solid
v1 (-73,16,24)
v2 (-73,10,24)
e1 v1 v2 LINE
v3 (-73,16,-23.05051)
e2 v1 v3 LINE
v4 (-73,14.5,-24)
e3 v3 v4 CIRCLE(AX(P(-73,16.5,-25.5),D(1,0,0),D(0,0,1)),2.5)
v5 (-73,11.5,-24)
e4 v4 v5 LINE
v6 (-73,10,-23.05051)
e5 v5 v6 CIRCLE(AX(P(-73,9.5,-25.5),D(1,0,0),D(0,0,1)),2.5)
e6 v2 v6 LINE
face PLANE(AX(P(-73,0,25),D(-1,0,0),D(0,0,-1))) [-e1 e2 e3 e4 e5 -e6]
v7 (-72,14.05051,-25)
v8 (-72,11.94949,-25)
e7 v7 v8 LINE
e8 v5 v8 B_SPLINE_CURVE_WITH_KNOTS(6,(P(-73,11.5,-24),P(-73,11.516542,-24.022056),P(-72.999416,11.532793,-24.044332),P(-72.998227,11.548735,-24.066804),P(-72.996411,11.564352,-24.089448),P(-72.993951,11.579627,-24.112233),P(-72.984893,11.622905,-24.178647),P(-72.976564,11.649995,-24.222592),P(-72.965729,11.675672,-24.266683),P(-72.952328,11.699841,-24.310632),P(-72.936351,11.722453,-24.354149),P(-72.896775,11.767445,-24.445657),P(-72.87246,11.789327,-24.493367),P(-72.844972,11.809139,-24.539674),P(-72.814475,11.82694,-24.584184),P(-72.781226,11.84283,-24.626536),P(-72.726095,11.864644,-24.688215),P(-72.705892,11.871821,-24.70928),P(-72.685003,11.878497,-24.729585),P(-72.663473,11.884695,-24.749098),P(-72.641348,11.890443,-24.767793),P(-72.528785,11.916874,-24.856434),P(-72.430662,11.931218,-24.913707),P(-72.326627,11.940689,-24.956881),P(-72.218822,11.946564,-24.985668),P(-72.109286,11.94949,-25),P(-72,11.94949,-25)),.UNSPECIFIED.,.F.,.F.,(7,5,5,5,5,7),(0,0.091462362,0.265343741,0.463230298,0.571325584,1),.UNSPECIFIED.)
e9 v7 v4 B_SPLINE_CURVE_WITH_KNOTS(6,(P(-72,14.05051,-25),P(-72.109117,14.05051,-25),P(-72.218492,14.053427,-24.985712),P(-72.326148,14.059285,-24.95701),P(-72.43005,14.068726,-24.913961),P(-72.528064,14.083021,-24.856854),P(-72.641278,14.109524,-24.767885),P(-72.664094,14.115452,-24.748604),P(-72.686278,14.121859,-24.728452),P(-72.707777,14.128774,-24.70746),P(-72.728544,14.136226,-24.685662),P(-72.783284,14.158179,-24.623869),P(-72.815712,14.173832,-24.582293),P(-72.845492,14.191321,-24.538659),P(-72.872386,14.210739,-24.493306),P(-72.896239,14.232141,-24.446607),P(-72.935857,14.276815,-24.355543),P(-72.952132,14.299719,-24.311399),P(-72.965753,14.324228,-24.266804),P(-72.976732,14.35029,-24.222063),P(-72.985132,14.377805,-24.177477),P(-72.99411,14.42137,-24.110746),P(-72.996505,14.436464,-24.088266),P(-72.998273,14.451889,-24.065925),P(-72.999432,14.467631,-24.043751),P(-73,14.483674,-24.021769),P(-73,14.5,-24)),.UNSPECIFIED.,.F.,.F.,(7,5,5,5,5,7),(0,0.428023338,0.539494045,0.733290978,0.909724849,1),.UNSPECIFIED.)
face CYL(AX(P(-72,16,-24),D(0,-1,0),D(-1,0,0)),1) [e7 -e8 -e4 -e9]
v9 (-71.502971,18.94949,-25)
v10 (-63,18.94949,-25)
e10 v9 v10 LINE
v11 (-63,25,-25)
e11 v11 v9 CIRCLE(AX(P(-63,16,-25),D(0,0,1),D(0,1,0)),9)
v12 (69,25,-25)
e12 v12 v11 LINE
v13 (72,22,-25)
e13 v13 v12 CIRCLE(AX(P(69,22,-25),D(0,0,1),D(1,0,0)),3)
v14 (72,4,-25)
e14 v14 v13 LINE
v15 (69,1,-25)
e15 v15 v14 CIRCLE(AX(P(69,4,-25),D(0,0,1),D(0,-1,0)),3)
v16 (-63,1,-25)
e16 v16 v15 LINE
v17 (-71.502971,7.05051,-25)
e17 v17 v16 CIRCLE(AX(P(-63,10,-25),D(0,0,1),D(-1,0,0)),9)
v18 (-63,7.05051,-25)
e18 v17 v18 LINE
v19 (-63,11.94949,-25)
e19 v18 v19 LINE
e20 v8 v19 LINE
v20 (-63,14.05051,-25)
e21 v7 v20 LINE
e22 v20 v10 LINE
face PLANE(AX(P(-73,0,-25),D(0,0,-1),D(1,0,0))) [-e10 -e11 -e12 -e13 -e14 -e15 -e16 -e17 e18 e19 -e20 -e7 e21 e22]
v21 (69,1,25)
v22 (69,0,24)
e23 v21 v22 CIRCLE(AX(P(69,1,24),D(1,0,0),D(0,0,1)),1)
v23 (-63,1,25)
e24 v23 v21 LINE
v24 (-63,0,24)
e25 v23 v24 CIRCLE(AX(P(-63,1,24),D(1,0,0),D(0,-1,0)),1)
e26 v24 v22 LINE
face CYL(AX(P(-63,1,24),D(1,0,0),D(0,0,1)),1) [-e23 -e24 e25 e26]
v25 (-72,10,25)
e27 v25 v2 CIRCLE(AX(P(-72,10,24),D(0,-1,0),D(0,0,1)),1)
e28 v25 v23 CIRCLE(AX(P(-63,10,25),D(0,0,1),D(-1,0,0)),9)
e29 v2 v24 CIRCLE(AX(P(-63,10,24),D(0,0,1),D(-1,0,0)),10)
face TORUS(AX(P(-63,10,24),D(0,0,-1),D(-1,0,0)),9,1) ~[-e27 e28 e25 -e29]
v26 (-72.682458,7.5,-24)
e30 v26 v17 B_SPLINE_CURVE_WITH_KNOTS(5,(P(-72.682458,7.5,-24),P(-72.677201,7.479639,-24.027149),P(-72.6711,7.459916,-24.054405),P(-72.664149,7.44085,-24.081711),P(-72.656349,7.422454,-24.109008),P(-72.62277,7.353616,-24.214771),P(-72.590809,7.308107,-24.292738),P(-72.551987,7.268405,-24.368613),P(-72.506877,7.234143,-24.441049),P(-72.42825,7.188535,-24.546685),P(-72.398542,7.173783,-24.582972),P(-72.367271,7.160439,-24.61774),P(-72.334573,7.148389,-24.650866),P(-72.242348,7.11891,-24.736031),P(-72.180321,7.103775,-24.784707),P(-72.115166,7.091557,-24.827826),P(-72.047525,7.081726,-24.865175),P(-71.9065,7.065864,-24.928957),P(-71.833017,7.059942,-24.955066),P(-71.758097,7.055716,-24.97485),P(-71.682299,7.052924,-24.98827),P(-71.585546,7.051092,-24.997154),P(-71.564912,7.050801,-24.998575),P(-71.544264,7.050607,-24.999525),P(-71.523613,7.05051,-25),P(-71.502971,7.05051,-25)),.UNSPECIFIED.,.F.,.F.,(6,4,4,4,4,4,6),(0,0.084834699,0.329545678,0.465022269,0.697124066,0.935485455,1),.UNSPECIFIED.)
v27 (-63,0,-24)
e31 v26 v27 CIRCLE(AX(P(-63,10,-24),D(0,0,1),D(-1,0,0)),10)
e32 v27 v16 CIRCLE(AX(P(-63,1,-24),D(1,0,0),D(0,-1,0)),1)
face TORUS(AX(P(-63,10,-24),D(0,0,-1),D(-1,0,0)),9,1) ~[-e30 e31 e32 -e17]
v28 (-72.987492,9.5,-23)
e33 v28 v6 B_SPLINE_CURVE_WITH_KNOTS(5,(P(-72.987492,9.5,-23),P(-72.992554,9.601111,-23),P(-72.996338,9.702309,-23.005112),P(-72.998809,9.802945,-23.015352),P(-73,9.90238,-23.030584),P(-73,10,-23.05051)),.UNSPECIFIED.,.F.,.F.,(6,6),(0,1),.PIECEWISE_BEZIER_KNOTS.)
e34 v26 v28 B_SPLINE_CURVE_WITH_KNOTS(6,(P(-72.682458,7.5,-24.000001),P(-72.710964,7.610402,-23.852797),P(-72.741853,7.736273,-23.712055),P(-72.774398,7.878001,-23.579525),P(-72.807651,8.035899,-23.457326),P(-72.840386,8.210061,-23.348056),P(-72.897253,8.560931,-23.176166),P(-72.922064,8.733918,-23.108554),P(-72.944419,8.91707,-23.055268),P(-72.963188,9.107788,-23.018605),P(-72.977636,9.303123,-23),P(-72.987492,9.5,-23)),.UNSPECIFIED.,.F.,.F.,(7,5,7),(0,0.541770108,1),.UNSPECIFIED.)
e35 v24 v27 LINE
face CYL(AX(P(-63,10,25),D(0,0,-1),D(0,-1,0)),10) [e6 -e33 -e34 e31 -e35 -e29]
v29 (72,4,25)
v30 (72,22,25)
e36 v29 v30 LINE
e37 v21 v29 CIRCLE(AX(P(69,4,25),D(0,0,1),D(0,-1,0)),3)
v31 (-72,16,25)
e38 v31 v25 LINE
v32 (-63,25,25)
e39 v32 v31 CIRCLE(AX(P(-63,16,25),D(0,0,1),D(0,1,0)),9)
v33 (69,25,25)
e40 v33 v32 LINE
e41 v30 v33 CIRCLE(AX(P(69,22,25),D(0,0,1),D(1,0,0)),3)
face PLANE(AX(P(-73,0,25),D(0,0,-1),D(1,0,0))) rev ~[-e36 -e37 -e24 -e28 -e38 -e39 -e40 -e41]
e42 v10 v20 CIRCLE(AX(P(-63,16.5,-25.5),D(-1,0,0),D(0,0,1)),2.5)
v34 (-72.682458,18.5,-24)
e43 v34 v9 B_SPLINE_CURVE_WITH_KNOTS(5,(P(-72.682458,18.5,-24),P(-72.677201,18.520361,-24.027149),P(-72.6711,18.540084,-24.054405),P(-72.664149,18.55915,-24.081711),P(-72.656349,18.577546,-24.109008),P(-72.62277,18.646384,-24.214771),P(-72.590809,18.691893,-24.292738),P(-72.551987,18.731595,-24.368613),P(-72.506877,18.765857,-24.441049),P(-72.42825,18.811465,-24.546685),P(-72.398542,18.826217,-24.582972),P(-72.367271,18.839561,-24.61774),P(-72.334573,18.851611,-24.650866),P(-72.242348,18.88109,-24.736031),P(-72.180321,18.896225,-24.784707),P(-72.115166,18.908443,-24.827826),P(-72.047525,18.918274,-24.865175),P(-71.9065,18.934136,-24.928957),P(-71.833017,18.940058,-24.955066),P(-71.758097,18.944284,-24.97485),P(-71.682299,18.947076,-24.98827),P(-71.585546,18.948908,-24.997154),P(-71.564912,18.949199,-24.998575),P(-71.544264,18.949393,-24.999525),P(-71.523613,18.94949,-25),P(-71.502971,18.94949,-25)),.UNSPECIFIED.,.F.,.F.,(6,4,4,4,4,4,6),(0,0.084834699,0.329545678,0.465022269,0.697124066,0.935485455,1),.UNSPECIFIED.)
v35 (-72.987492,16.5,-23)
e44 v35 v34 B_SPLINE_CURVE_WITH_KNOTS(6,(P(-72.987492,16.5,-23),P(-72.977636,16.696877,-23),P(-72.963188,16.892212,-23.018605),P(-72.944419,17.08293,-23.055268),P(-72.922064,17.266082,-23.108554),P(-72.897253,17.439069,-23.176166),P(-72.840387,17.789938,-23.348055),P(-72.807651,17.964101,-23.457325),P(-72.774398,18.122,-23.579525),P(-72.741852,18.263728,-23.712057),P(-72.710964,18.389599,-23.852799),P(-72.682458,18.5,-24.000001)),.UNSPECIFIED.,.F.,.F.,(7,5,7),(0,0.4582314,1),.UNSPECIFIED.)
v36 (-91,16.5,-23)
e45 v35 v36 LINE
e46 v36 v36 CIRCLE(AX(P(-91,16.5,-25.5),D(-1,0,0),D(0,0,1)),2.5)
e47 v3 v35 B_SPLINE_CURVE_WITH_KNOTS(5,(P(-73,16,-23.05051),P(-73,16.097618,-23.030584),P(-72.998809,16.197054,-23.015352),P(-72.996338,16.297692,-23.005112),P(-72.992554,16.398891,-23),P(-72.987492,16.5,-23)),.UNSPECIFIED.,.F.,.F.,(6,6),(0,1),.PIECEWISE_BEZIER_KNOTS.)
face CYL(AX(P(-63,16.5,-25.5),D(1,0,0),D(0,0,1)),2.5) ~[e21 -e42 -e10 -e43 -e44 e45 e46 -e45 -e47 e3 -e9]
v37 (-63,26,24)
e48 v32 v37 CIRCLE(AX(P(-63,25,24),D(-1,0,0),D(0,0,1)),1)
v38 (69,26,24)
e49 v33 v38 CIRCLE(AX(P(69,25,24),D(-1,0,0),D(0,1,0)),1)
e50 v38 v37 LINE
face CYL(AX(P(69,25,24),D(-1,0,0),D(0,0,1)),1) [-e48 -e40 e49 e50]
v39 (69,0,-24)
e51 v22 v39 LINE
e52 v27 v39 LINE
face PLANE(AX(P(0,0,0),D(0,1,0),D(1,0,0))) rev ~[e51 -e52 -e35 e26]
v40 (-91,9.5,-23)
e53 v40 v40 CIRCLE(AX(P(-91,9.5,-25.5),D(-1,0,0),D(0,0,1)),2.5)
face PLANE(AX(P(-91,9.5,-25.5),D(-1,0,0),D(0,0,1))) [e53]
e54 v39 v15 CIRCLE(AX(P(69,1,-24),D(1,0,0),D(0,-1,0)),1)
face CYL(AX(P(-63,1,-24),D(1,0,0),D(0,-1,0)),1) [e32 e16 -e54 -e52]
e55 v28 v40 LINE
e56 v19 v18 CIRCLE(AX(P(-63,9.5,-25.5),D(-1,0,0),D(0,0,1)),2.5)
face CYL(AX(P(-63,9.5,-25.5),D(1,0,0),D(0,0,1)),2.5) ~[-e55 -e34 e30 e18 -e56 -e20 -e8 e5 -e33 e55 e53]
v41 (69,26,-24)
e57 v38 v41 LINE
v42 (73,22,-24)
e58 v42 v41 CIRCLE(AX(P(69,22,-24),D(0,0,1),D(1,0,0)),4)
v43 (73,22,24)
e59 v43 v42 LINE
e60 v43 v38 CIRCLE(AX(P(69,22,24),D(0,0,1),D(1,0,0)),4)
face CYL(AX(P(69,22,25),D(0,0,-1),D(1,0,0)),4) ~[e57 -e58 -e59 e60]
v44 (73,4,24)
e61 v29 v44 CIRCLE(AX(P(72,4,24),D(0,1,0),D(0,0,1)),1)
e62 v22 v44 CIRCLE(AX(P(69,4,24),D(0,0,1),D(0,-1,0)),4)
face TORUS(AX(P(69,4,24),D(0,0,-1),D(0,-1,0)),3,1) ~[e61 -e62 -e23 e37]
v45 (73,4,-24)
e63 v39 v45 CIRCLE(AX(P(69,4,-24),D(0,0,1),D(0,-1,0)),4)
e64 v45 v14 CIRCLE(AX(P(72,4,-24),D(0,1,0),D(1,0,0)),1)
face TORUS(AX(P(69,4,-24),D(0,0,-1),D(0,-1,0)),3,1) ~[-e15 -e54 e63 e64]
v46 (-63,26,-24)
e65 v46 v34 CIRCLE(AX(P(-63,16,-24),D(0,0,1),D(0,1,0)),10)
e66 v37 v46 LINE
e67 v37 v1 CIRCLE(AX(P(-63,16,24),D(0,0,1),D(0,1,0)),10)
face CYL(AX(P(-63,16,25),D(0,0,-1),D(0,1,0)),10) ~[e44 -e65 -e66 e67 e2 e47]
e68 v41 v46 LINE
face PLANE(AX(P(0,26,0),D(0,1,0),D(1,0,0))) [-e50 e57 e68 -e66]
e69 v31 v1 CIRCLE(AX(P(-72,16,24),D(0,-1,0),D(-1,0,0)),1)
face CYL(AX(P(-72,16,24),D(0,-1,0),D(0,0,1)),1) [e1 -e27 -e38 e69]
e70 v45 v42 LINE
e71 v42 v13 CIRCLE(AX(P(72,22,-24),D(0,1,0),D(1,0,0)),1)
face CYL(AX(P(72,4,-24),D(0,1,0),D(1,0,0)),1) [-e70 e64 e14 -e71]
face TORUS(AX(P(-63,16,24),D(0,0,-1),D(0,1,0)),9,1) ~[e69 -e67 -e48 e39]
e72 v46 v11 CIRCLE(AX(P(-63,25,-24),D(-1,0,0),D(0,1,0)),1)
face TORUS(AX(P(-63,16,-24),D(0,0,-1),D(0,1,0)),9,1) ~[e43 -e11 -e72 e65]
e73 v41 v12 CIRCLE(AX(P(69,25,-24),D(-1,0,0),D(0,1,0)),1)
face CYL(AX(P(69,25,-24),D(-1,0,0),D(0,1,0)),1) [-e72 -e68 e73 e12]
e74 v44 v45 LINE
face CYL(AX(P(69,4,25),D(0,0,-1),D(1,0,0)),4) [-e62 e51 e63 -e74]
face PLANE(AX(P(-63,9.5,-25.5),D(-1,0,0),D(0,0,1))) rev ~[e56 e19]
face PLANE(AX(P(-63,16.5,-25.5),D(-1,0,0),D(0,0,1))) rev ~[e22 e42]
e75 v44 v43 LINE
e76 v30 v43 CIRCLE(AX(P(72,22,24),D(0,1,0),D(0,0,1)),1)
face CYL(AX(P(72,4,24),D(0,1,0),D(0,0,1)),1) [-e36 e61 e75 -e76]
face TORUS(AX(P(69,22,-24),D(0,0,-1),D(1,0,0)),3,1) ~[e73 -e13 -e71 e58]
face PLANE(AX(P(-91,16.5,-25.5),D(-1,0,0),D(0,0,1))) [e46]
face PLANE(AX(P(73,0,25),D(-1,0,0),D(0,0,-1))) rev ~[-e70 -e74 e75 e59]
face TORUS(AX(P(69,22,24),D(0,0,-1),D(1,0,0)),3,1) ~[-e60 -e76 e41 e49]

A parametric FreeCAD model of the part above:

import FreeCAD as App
import Part
import Sketcher

V = App.Vector
Q = App.Units.Quantity


def edges_at(feature, points):
    """Names of the edges that pass closest to the given points."""
    edges = feature.Shape.Edges
    near = lambda p: min(range(len(edges)), key=lambda i: edges[i].distToShape(Part.Vertex(*p))[0])
    return sorted({f"Edge{near(p) + 1}" for p in points})


def add_polygon(sketch, points):
    """Adds a closed chain of lines whose ends are joined by coincident constraints."""
    first, n = sketch.GeometryCount, len(points)
    for a, b in zip(points, points[1:] + points[:1]):
        sketch.addGeometry(Part.LineSegment(App.Vector(*a, 0), App.Vector(*b, 0)), False)
    for i in range(n):
        sketch.addConstraint(Sketcher.Constraint("Coincident", first + i, 2, first + (i + 1) % n, 1))

doc = App.newDocument("Part")
body = doc.addObject("PartDesign::Body", "Body")

sketch1 = body.newObject("Sketcher::SketchObject", "Sketch")
sketch1.AttachmentSupport = (doc.getObject("XZ_Plane"), [""])
sketch1.MapMode = "FlatFace"
add_polygon(sketch1, [(-73, -25), (-73, 25), (73, 25), (73, -25)])
sketch1.addConstraint(Sketcher.Constraint("Vertical", 0))
sketch1.addConstraint(Sketcher.Constraint("Horizontal", 1))
sketch1.addConstraint(Sketcher.Constraint("Vertical", 2))
sketch1.addConstraint(Sketcher.Constraint("Horizontal", 3))
sketch1.addConstraint(Sketcher.Constraint("Symmetric", 0, 2, 2, 2, -1, 1))
sketch1.addConstraint(Sketcher.Constraint("DistanceX", 1, 1, 1, 2, Q("146 mm")))
sketch1.addConstraint(Sketcher.Constraint("DistanceY", 0, 1, 0, 2, Q("50 mm")))
pad1 = body.newObject("PartDesign::Pad", "Pad")
pad1.Profile = sketch1
pad1.Length = 26
pad1.Reversed = True
doc.recompute()

fillet = body.newObject("PartDesign::Fillet", "Fillet")
fillet.Base = (pad1, edges_at(pad1, [(73, 26, 0), (73, 0, 0)]))
fillet.Radius = 4
doc.recompute()

fillet2 = body.newObject("PartDesign::Fillet", "Fillet001")
fillet2.Base = (fillet, edges_at(fillet, [(-73, 26, 0), (-73, 0, 0)]))
fillet2.Radius = 10
doc.recompute()

fillet3 = body.newObject("PartDesign::Fillet", "Fillet002")
fillet3.Base = (fillet2, edges_at(fillet2, [
    (73, 13, -25),
    (73, 13, 25),
    (3, 0, -25),
    (3, 26, -25),
    (71.828, 24.828, -25),
    (71.828, 1.172, -25),
    (71.828, 24.828, 25),
    (71.828, 1.172, 25),
    (-73, 13, 25),
    (-73, 13, -25),
    (3, 0, 25),
    (3, 26, 25),
    (-70.071, 23.071, 25),
    (-70.071, 2.929, 25),
    (-70.071, 23.071, -25),
    (-70.071, 2.929, -25),
]))
fillet3.Radius = 1

sketch2 = body.newObject("Sketcher::SketchObject", "Sketch001")
sketch2.AttachmentSupport = (doc.getObject("YZ_Plane"), [""])
sketch2.MapMode = "FlatFace"
sketch2.AttachmentOffset = App.Placement(V(0, 0, -73), App.Rotation())
sketch2.addGeometry(Part.Circle(V(16.5, -25.5, 0), V(0, 0, 1), 2.5), False)
sketch2.addGeometry(Part.Circle(V(9.5, -25.5, 0), V(0, 0, 1), 2.5), False)
sketch2.addConstraint(Sketcher.Constraint("Equal", 0, 1))
sketch2.addConstraint(Sketcher.Constraint("Horizontal", 0, 3, 1, 3))
sketch2.addConstraint(Sketcher.Constraint("Diameter", 0, Q("5 mm")))
sketch2.addConstraint(Sketcher.Constraint("DistanceX", 1, 3, 0, 3, Q("7 mm")))
sketch2.addConstraint(Sketcher.Constraint("DistanceX", -1, 1, 0, 3, Q("16.5 mm")))
sketch2.addConstraint(Sketcher.Constraint("DistanceY", 0, 3, -1, 1, Q("25.5 mm")))
pad2 = body.newObject("PartDesign::Pad", "Pad001")
pad2.Profile = sketch2
pad2.Type = "TwoLengths"
pad2.Length = 18
pad2.Length2 = 10
pad2.Reversed = True

doc.recompute()
